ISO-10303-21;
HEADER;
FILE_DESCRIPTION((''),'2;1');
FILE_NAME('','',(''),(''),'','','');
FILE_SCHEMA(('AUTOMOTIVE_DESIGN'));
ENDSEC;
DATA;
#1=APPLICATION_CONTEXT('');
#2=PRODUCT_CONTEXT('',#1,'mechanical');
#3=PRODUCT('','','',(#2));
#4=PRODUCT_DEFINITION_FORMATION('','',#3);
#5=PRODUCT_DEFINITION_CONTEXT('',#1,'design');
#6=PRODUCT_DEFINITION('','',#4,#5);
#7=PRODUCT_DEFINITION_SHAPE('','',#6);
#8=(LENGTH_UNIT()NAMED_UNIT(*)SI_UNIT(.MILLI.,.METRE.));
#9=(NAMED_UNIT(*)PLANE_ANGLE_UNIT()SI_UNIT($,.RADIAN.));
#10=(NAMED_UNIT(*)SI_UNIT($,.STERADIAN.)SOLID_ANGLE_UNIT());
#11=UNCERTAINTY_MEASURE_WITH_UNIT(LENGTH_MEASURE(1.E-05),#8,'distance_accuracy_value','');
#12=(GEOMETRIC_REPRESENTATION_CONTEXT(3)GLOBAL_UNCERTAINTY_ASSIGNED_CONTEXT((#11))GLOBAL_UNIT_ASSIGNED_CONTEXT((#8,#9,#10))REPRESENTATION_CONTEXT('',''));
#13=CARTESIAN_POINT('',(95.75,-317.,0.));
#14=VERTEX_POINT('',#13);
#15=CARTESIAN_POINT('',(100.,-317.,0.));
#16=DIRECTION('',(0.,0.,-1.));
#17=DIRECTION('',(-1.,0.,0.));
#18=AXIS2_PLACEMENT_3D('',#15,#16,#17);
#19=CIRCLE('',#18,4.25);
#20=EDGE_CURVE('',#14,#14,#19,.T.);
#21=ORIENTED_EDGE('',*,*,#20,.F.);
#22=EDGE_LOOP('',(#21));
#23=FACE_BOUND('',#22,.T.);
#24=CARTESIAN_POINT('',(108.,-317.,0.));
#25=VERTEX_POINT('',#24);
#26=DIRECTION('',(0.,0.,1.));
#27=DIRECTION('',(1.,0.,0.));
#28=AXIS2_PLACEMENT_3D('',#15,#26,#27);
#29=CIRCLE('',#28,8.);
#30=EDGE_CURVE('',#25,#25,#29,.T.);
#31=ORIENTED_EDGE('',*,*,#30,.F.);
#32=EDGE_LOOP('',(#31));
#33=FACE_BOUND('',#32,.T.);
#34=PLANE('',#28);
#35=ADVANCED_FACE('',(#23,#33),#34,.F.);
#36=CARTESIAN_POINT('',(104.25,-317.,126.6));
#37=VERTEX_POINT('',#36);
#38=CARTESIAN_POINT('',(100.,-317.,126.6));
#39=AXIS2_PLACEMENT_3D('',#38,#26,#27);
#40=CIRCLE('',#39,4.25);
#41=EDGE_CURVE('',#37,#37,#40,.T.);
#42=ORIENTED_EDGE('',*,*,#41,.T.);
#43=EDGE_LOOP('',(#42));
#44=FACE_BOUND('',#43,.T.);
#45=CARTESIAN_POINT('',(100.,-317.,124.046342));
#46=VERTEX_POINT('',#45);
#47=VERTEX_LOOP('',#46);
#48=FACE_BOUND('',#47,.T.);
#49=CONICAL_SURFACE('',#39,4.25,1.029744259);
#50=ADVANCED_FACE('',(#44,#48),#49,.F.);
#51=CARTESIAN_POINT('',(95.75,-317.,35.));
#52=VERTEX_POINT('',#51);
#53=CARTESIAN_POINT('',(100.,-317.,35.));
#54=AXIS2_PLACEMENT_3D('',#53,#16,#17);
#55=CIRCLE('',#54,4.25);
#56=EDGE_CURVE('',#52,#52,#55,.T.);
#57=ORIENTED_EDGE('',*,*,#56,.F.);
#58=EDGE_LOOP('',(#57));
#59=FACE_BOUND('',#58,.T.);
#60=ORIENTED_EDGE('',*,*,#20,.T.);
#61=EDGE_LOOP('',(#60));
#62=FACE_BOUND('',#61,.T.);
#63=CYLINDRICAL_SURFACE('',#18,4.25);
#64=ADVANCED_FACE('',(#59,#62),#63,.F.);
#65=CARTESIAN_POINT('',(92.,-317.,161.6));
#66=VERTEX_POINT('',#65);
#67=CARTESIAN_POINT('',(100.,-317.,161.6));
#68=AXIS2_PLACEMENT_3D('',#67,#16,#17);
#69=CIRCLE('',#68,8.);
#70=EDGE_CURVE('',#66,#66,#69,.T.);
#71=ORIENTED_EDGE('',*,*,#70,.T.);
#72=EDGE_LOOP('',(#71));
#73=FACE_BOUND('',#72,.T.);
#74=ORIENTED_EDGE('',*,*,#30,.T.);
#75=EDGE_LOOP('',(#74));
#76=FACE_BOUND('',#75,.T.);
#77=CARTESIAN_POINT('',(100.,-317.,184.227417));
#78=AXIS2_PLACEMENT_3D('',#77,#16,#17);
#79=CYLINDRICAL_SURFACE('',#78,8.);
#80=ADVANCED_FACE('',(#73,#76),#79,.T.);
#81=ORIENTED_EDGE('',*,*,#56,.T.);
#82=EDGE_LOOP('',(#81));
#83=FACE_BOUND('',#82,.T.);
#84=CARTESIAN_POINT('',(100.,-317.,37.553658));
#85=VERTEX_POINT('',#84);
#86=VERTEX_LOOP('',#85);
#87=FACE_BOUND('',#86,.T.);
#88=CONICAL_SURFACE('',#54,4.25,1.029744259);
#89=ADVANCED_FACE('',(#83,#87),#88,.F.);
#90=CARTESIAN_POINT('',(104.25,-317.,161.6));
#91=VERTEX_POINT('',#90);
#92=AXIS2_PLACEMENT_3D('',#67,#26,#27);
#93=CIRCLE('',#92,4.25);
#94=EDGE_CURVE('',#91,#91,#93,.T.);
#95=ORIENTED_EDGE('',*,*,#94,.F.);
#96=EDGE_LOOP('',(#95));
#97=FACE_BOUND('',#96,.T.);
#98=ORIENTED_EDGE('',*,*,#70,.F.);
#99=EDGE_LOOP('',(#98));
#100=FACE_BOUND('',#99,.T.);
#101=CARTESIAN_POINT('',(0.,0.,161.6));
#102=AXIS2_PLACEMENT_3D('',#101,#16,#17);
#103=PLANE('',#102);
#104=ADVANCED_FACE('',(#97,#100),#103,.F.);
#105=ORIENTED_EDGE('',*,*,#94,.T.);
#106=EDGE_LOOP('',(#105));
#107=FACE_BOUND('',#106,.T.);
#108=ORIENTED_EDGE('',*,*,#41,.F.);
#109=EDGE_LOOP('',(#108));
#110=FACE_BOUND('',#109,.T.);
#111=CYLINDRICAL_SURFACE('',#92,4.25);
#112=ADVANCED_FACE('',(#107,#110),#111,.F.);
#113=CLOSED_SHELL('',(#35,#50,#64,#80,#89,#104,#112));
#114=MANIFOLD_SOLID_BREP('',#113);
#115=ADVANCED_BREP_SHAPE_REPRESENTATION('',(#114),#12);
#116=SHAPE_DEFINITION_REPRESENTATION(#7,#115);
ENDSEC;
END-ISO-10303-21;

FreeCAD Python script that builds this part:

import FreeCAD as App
import Part
import Sketcher

doc = App.newDocument("Part")
body = doc.addObject("PartDesign::Body", "Body")

# Sketch on XY plane
sketch1 = doc.addObject("Sketcher::SketchObject", "Sketch")
body.addObject(sketch1)
sketch1.AttachmentSupport = (doc.XY_Plane, [""])
sketch1.MapMode = "FlatFace"
sketch1.addGeometry(Part.Circle(App.Vector(100, -317, 0), App.Vector(0, 0, 1), 8), False)
sketch1.addConstraint([
    Sketcher.Constraint("Diameter", 0, 16.0),
    Sketcher.Constraint("DistanceX", -1, 1, 0, 3, 100.0),
    Sketcher.Constraint("DistanceY", 0, 3, -1, 1, 317.0),
])
pad1 = doc.addObject("PartDesign::Pad", "Pad")
body.addObject(pad1)
pad1.Profile = sketch1
pad1.Length = 161.6

# Sketch on XY plane
sketch2 = doc.addObject("Sketcher::SketchObject", "Sketch001")
body.addObject(sketch2)
sketch2.AttachmentSupport = (doc.XY_Plane, [""])
sketch2.MapMode = "FlatFace"
sketch2.AttachmentOffset = App.Placement(App.Vector(0, 0, 161.6), App.Rotation())
sketch2.addGeometry(Part.Circle(App.Vector(100, -317, 0), App.Vector(0, 0, 1), 4.2), False)
sketch2.addConstraint([
    Sketcher.Constraint("Diameter", 0, 8.5),
    Sketcher.Constraint("DistanceX", -1, 1, 0, 3, 100.0),
    Sketcher.Constraint("DistanceY", 0, 3, -1, 1, 317.0),
])
doc.recompute()
hole = doc.addObject("PartDesign::Hole", "Hole")
body.addObject(hole)
hole.Profile = sketch2
hole.ThreadType = "None"
hole.Diameter = 8.5
hole.DepthType = "Dimension"
hole.Depth = 35
hole.DrillPoint = "Angled"
hole.DrillPointAngle = 118

# Sketch on XY plane
sketch3 = doc.addObject("Sketcher::SketchObject", "Sketch002")
body.addObject(sketch3)
sketch3.AttachmentSupport = (doc.XY_Plane, [""])
sketch3.MapMode = "FlatFace"
sketch3.addGeometry(Part.Circle(App.Vector(100, -317, 0), App.Vector(0, 0, 1), 4.2), False)
sketch3.addConstraint([
    Sketcher.Constraint("Diameter", 0, 8.5),
    Sketcher.Constraint("DistanceX", -1, 1, 0, 3, 100.0),
    Sketcher.Constraint("DistanceY", 0, 3, -1, 1, 317.0),
])
doc.recompute()
hole2 = doc.addObject("PartDesign::Hole", "Hole001")
body.addObject(hole2)
hole2.Profile = sketch3
hole2.ThreadType = "None"
hole2.Diameter = 8.5
hole2.DepthType = "Dimension"
hole2.Depth = 35
hole2.DrillPoint = "Angled"
hole2.DrillPointAngle = 118
hole2.Reversed = True

doc.recompute()
